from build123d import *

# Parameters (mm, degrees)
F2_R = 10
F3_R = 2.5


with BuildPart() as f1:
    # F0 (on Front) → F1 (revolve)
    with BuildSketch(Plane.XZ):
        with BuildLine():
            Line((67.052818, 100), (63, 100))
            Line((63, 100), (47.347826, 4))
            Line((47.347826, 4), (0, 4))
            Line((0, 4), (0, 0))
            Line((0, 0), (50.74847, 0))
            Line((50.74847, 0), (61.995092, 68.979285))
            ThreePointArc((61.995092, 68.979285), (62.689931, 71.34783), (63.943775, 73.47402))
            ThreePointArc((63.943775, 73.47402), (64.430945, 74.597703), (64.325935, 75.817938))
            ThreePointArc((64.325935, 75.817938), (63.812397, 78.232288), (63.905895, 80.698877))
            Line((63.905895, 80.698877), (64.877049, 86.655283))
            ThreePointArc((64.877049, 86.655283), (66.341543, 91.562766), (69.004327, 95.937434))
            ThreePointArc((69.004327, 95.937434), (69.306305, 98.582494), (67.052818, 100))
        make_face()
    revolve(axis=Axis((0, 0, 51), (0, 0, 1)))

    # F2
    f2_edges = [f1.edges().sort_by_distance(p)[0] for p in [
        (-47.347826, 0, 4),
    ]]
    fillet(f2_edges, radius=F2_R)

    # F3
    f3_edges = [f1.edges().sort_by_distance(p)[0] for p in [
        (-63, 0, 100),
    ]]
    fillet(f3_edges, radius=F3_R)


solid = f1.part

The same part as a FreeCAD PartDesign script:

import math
import FreeCAD as App
import Part
import Sketcher

V = App.Vector
Q = App.Units.Quantity


def edges_at(feature, points):
    """Names of the edges that pass closest to the given points."""
    edges = feature.Shape.Edges
    near = lambda p: min(range(len(edges)), key=lambda i: edges[i].distToShape(Part.Vertex(*p))[0])
    return sorted({f"Edge{near(p) + 1}" for p in points})

doc = App.newDocument("Part")
body = doc.addObject("PartDesign::Body", "Body")

sketch1 = body.newObject("Sketcher::SketchObject", "Sketch")
sketch1.AttachmentSupport = (doc.getObject("XZ_Plane"), [""])
sketch1.MapMode = "FlatFace"
sketch1.addGeometry(Part.LineSegment(V(67.1, 100, 0), V(63, 100, 0)), False)
sketch1.addGeometry(Part.LineSegment(V(63, 100, 0), V(47.3, 4, 0)), False)
sketch1.addGeometry(Part.LineSegment(V(47.3, 4, 0), V(0, 4, 0)), False)
sketch1.addGeometry(Part.LineSegment(V(0, 4, 0), V(0, 0, 0)), False)
sketch1.addGeometry(Part.LineSegment(V(0, 0, 0), V(50.7, 0, 0)), False)
sketch1.addGeometry(Part.LineSegment(V(50.7, 0, 0), V(62, 69, 0)), False)
sketch1.addGeometry(Part.ArcOfCircle(Part.Circle(V(71.9, 67.4, 0), V(0, 0, 1), 10), math.radians(142), math.radians(171)), False)
sketch1.addGeometry(Part.ArcOfCircle(Part.Circle(V(62, 75, 0), V(0, 0, 1), 2.5), math.radians(-38), math.radians(19)), False)
sketch1.addGeometry(Part.ArcOfCircle(Part.Circle(V(73.8, 79.1, 0), V(0, 0, 1), 10), math.radians(171), math.radians(199)), False)
sketch1.addGeometry(Part.LineSegment(V(63.9, 80.7, 0), V(64.9, 86.7, 0)), False)
sketch1.addGeometry(Part.ArcOfCircle(Part.Circle(V(84.6, 83.4, 0), V(0, 0, 1), 20), math.radians(141), math.radians(171)), False)
sketch1.addGeometry(Part.ArcOfCircle(Part.Circle(V(67.1, 97.5, 0), V(0, 0, 1), 2.5), math.radians(-39), math.radians(90)), False)
sketch1.addConstraint(Sketcher.Constraint("Coincident", 0, 2, 1, 1))
sketch1.addConstraint(Sketcher.Constraint("Coincident", 1, 2, 2, 1))
sketch1.addConstraint(Sketcher.Constraint("Coincident", 2, 2, 3, 1))
sketch1.addConstraint(Sketcher.Constraint("Coincident", 3, 2, 4, 1))
sketch1.addConstraint(Sketcher.Constraint("Coincident", 4, 2, 5, 1))
sketch1.addConstraint(Sketcher.Constraint("Tangent", 5, 2, 6, 2))
sketch1.addConstraint(Sketcher.Constraint("Tangent", 6, 1, 7, 1))
sketch1.addConstraint(Sketcher.Constraint("Tangent", 7, 2, 8, 2))
sketch1.addConstraint(Sketcher.Constraint("Tangent", 8, 1, 9, 1))
sketch1.addConstraint(Sketcher.Constraint("Tangent", 9, 2, 10, 2))
sketch1.addConstraint(Sketcher.Constraint("Tangent", 10, 1, 11, 1))
sketch1.addConstraint(Sketcher.Constraint("Tangent", 11, 2, 0, 1))
sketch1.addConstraint(Sketcher.Constraint("Horizontal", 0))
sketch1.addConstraint(Sketcher.Constraint("Horizontal", 2))
sketch1.addConstraint(Sketcher.Constraint("Vertical", 3))
sketch1.addConstraint(Sketcher.Constraint("Horizontal", 4))
sketch1.addConstraint(Sketcher.Constraint("Coincident", 3, 2, -1, 1))
sketch1.addConstraint(Sketcher.Constraint("Equal", 7, 11))
sketch1.addConstraint(Sketcher.Constraint("Parallel", 1, 5))
sketch1.addConstraint(Sketcher.Constraint("Parallel", 5, 9))
sketch1.addConstraint(Sketcher.Constraint("Radius", 7, Q("2.500001 mm")))
sketch1.addConstraint(Sketcher.Constraint("DistanceY", 3, 2, 3, 1, Q("4 mm")))
sketch1.addConstraint(Sketcher.Constraint("DistanceY", -1, 1, 7, 3, Q("75 mm")))
sketch1.addConstraint(Sketcher.Constraint("DistanceX", -1, 1, 0, 2, Q("63 mm")))
sketch1.addConstraint(Sketcher.Constraint("DistanceY", -1, 1, 0, 2, Q("100 mm")))
sketch1.addConstraint(Sketcher.Constraint("Radius", 6, Q("10.000007 mm")))
sketch1.addConstraint(Sketcher.Constraint("Radius", 8, Q("10.000015 mm")))
sketch1.addConstraint(Sketcher.Constraint("Radius", 10, Q("19.999982 mm")))
sketch1.addConstraint(Sketcher.Constraint("DistanceX", 6, 1, 6, 3, Q("7.921 mm")))
sketch1.addConstraint(Sketcher.Constraint("DistanceX", 0, 2, 0, 1, Q("4.052818 mm")))
sketch1.addConstraint(Sketcher.Constraint("DistanceX", 4, 1, 4, 2, Q("50.74847 mm")))
sketch1.addConstraint(Sketcher.Constraint("DistanceX", 8, 3, 10, 3, Q("10.840798 mm")))
sketch1.addConstraint(Sketcher.Constraint("DistanceX", 1, 2, 7, 3, Q("14.615699 mm")))
revolution = body.newObject("PartDesign::Revolution", "Revolution")
revolution.Profile = sketch1
revolution.ReferenceAxis = (sketch1, ["V_Axis"])
revolution.Angle = 360
doc.recompute()

fillet = body.newObject("PartDesign::Fillet", "Fillet")
fillet.Base = (revolution, edges_at(revolution, [(-47.348, 0, 4)]))
fillet.Radius = 10
doc.recompute()

fillet2 = body.newObject("PartDesign::Fillet", "Fillet001")
fillet2.Base = (fillet, edges_at(fillet, [(-63, 0, 100)]))
fillet2.Radius = 2.5

doc.recompute()
